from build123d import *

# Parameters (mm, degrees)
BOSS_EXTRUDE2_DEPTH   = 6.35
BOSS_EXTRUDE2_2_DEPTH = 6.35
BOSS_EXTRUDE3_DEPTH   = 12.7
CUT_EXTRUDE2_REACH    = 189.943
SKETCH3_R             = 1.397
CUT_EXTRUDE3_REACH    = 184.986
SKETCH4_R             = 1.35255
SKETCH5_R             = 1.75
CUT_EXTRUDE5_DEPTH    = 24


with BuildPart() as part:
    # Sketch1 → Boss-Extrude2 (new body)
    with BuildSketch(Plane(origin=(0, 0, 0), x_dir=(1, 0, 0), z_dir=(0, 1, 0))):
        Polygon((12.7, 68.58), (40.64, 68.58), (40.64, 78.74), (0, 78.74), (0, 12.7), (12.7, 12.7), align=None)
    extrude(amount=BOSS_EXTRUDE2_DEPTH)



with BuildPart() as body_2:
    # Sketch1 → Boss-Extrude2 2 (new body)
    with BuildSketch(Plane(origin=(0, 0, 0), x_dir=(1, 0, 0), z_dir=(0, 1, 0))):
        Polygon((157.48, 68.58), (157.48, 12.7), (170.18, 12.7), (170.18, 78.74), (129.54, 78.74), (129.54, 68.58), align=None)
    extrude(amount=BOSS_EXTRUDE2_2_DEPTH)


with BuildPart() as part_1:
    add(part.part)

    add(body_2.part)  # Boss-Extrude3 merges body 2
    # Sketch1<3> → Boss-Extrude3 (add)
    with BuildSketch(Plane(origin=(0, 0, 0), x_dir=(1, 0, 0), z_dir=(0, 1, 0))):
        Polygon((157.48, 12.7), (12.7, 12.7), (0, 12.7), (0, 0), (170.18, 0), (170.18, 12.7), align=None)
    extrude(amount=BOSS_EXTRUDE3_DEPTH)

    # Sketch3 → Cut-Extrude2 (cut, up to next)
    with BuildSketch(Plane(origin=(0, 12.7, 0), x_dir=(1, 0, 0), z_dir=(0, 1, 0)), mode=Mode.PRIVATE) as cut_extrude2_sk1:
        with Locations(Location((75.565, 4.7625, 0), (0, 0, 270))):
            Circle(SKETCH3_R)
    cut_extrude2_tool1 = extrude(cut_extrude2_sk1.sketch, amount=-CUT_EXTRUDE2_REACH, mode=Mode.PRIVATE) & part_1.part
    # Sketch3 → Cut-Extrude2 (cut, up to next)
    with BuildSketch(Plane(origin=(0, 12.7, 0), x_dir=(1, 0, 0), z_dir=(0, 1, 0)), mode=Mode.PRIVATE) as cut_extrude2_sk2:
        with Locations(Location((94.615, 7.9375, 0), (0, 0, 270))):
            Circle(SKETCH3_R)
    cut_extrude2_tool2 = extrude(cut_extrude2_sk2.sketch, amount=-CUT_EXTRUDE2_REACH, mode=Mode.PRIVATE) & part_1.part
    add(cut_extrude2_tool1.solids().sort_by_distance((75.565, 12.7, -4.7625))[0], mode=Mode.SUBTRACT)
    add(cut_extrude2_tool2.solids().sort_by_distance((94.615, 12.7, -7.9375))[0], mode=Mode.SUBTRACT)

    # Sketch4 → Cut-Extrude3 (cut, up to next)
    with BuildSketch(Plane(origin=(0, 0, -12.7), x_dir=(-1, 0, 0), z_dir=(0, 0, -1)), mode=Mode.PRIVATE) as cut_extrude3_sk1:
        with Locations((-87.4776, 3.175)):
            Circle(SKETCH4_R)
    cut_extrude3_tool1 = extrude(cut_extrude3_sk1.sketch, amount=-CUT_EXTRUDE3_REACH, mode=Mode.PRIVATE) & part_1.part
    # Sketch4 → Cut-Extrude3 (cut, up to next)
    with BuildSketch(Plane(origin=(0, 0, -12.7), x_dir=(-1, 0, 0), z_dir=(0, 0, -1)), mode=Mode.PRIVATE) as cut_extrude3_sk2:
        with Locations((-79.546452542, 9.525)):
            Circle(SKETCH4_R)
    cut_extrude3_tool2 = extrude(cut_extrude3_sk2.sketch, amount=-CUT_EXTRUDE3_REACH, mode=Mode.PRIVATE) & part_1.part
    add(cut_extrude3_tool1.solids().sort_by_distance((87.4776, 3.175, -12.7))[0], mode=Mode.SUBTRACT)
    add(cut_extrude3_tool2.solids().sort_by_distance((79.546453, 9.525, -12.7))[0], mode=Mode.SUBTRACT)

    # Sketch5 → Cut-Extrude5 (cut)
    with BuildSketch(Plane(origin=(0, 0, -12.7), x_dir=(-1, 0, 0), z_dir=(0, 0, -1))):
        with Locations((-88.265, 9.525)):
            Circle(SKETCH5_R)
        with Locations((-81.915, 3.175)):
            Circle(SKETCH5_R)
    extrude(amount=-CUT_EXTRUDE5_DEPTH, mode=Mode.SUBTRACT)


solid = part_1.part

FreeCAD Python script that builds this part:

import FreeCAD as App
import Part
import Sketcher
Q = App.Units.Quantity


def add_polygon(sketch, points):
    """Adds a closed chain of lines whose ends are joined by coincident constraints."""
    first, n = sketch.GeometryCount, len(points)
    for a, b in zip(points, points[1:] + points[:1]):
        sketch.addGeometry(Part.LineSegment(App.Vector(*a, 0), App.Vector(*b, 0)), False)
    for i in range(n):
        sketch.addConstraint(Sketcher.Constraint("Coincident", first + i, 2, first + (i + 1) % n, 1))

doc = App.newDocument("Part")
body = doc.addObject("PartDesign::Body", "Body")

sketch1 = doc.addObject("Sketcher::SketchObject", "Sketch")
body.addObject(sketch1)
sketch1.AttachmentSupport = (doc.XZ_Plane, [""])
sketch1.MapMode = "FlatFace"
add_polygon(sketch1, [(13, -69), (41, -69), (41, -79), (0, -79), (0, -13), (13, -13)])
sketch1.addConstraint([
    Sketcher.Constraint("Horizontal", 0),
    Sketcher.Constraint("Vertical", 1),
    Sketcher.Constraint("Horizontal", 2),
    Sketcher.Constraint("Vertical", 3),
    Sketcher.Constraint("Horizontal", 4),
    Sketcher.Constraint("Vertical", 5),
    Sketcher.Constraint("PointOnObject", 2, 2, -2),
    Sketcher.Constraint("DistanceX", 0, 1, 0, 2, Q("1.1 in")),
    Sketcher.Constraint("DistanceX", 2, 2, 2, 1, Q("1.6 in")),
    Sketcher.Constraint("DistanceY", 1, 2, 1, 1, Q("0.4 in")),
    Sketcher.Constraint("DistanceY", 3, 1, 3, 2, Q("2.6 in")),
    Sketcher.Constraint("DistanceY", 0, 2, -1, 1, Q("2.7 in")),
])
pad1 = doc.addObject("PartDesign::Pad", "Pad")
body.addObject(pad1)
pad1.Profile = sketch1
pad1.Length = Q("0.25 in")
pad1.Reversed = True
body2 = doc.addObject("PartDesign::Body", "Body001")

sketch2 = doc.addObject("Sketcher::SketchObject", "Sketch001")
body2.addObject(sketch2)
sketch2.AttachmentSupport = (doc.getObject("XZ_Plane001"), [""])
sketch2.MapMode = "FlatFace"
add_polygon(sketch2, [(157, -69), (157, -13), (170, -13), (170, -79), (130, -79), (130, -69)])
sketch2.addConstraint([
    Sketcher.Constraint("Vertical", 0),
    Sketcher.Constraint("Horizontal", 1),
    Sketcher.Constraint("Vertical", 2),
    Sketcher.Constraint("Horizontal", 3),
    Sketcher.Constraint("Vertical", 4),
    Sketcher.Constraint("Horizontal", 5),
    Sketcher.Constraint("DistanceX", 1, 1, 1, 2, Q("0.5 in")),
    Sketcher.Constraint("DistanceX", 3, 2, 3, 1, Q("1.6 in")),
    Sketcher.Constraint("DistanceY", 0, 1, 0, 2, Q("2.2 in")),
    Sketcher.Constraint("DistanceY", 2, 2, 2, 1, Q("2.6 in")),
    Sketcher.Constraint("DistanceX", -1, 1, 0, 2, Q("6.2 in")),
    Sketcher.Constraint("DistanceY", 0, 2, -1, 1, Q("0.5 in")),
])
pad2 = doc.addObject("PartDesign::Pad", "Pad001")
body2.addObject(pad2)
pad2.Profile = sketch2
pad2.Length = Q("0.25 in")
pad2.Reversed = True
body.AllowCompound = True
doc.recompute()

boolean = doc.addObject("PartDesign::Boolean", "Boolean")
body.addObject(boolean)
boolean.Type = "Fuse"
boolean.addObjects([body2])

sketch3 = doc.addObject("Sketcher::SketchObject", "Sketch002")
body.addObject(sketch3)
sketch3.AttachmentSupport = (doc.XZ_Plane, [""])
sketch3.MapMode = "FlatFace"
add_polygon(sketch3, [(0, -13), (0, 0), (170, 0), (170, -13)])
sketch3.addConstraint([
    Sketcher.Constraint("Vertical", 0),
    Sketcher.Constraint("Horizontal", 1),
    Sketcher.Constraint("Vertical", 2),
    Sketcher.Constraint("Horizontal", 3),
    Sketcher.Constraint("Coincident", 0, 2, -1, 1),
    Sketcher.Constraint("DistanceX", 1, 1, 1, 2, Q("6.7 in")),
    Sketcher.Constraint("DistanceY", 0, 1, 0, 2, Q("0.5 in")),
])
pad3 = doc.addObject("PartDesign::Pad", "Pad002")
body.addObject(pad3)
pad3.Profile = sketch3
pad3.Length = Q("0.5 in")
pad3.Reversed = True

sketch4 = doc.addObject("Sketcher::SketchObject", "Sketch003")
body.addObject(sketch4)
sketch4.AttachmentSupport = (doc.XZ_Plane, [""])
sketch4.MapMode = "FlatFace"
sketch4.AttachmentOffset = App.Placement(App.Vector(0, 0, -0.5 * 25.4), App.Rotation())
sketch4.addGeometry(Part.Circle(App.Vector(75.6, -4.8, 0), App.Vector(0, 0, 1), 1.4), False)
sketch4.addConstraint([
    Sketcher.Constraint("Diameter", 0, Q("0.11 in")),
    Sketcher.Constraint("DistanceX", -1, 1, 0, 3, Q("2.975 in")),
    Sketcher.Constraint("DistanceY", 0, 3, -1, 1, Q("0.1875 in")),
])
pocket1 = doc.addObject("PartDesign::Pocket", "Pocket")
body.addObject(pocket1)
pocket1.Profile = sketch4
pocket1.Type = "UpToFirst"
pocket1.Reversed = True

sketch5 = doc.addObject("Sketcher::SketchObject", "Sketch004")
body.addObject(sketch5)
sketch5.AttachmentSupport = (doc.XZ_Plane, [""])
sketch5.MapMode = "FlatFace"
sketch5.AttachmentOffset = App.Placement(App.Vector(0, 0, -0.5 * 25.4), App.Rotation())
sketch5.addGeometry(Part.Circle(App.Vector(94.6, -7.9, 0), App.Vector(0, 0, 1), 1.4), False)
sketch5.addConstraint([
    Sketcher.Constraint("Diameter", 0, Q("0.11 in")),
    Sketcher.Constraint("DistanceX", -1, 1, 0, 3, Q("3.725 in")),
    Sketcher.Constraint("DistanceY", 0, 3, -1, 1, Q("0.3125 in")),
])
pocket2 = doc.addObject("PartDesign::Pocket", "Pocket001")
body.addObject(pocket2)
pocket2.Profile = sketch5
pocket2.Type = "UpToFirst"
pocket2.Reversed = True

sketch6 = doc.addObject("Sketcher::SketchObject", "Sketch005")
body.addObject(sketch6)
sketch6.AttachmentSupport = (doc.XY_Plane, [""])
sketch6.MapMode = "FlatFace"
sketch6.AttachmentOffset = App.Placement(App.Vector(0, 0, -0.5 * 25.4), App.Rotation())
sketch6.addGeometry(Part.Circle(App.Vector(87.5, 3.2, 0), App.Vector(0, 0, 1), 1.4), False)
sketch6.addConstraint([
    Sketcher.Constraint("Diameter", 0, Q("0.1065 in")),
    Sketcher.Constraint("DistanceX", -1, 1, 0, 3, Q("3.444 in")),
    Sketcher.Constraint("DistanceY", -1, 1, 0, 3, Q("0.125 in")),
])
pocket3 = doc.addObject("PartDesign::Pocket", "Pocket002")
body.addObject(pocket3)
pocket3.Profile = sketch6
pocket3.Type = "UpToFirst"
pocket3.Reversed = True

sketch7 = doc.addObject("Sketcher::SketchObject", "Sketch006")
body.addObject(sketch7)
sketch7.AttachmentSupport = (doc.XY_Plane, [""])
sketch7.MapMode = "FlatFace"
sketch7.AttachmentOffset = App.Placement(App.Vector(0, 0, -0.5 * 25.4), App.Rotation())
sketch7.addGeometry(Part.Circle(App.Vector(79.5, 9.5, 0), App.Vector(0, 0, 1), 1.4), False)
sketch7.addConstraint([
    Sketcher.Constraint("Diameter", 0, Q("0.1065 in")),
    Sketcher.Constraint("DistanceY", -1, 1, 0, 3, Q("0.375 in")),
    Sketcher.Constraint("DistanceX", -1, 1, 0, 3, Q("79.546453 mm")),
])
pocket4 = doc.addObject("PartDesign::Pocket", "Pocket003")
body.addObject(pocket4)
pocket4.Profile = sketch7
pocket4.Type = "UpToFirst"
pocket4.Reversed = True

sketch8 = doc.addObject("Sketcher::SketchObject", "Sketch007")
body.addObject(sketch8)
sketch8.AttachmentSupport = (doc.XY_Plane, [""])
sketch8.MapMode = "FlatFace"
sketch8.AttachmentOffset = App.Placement(App.Vector(0, 0, -0.5 * 25.4), App.Rotation())
sketch8.addGeometry([
    Part.Circle(App.Vector(88.3, 9.5, 0), App.Vector(0, 0, 1), 1.8),
    Part.Circle(App.Vector(81.9, 3.2, 0), App.Vector(0, 0, 1), 1.8),
], False)
sketch8.addConstraint([
    Sketcher.Constraint("Equal", 0, 1),
    Sketcher.Constraint("Diameter", 0, Q("3.5 mm")),
    Sketcher.Constraint("DistanceX", 1, 3, 0, 3, Q("0.25 in")),
    Sketcher.Constraint("DistanceY", 1, 3, 0, 3, Q("0.25 in")),
    Sketcher.Constraint("DistanceX", -1, 1, 0, 3, Q("3.475 in")),
    Sketcher.Constraint("DistanceY", -1, 1, 0, 3, Q("0.375 in")),
])
pocket5 = doc.addObject("PartDesign::Pocket", "Pocket004")
body.addObject(pocket5)
pocket5.Profile = sketch8
pocket5.Length = 24
pocket5.Reversed = True

doc.recompute()
